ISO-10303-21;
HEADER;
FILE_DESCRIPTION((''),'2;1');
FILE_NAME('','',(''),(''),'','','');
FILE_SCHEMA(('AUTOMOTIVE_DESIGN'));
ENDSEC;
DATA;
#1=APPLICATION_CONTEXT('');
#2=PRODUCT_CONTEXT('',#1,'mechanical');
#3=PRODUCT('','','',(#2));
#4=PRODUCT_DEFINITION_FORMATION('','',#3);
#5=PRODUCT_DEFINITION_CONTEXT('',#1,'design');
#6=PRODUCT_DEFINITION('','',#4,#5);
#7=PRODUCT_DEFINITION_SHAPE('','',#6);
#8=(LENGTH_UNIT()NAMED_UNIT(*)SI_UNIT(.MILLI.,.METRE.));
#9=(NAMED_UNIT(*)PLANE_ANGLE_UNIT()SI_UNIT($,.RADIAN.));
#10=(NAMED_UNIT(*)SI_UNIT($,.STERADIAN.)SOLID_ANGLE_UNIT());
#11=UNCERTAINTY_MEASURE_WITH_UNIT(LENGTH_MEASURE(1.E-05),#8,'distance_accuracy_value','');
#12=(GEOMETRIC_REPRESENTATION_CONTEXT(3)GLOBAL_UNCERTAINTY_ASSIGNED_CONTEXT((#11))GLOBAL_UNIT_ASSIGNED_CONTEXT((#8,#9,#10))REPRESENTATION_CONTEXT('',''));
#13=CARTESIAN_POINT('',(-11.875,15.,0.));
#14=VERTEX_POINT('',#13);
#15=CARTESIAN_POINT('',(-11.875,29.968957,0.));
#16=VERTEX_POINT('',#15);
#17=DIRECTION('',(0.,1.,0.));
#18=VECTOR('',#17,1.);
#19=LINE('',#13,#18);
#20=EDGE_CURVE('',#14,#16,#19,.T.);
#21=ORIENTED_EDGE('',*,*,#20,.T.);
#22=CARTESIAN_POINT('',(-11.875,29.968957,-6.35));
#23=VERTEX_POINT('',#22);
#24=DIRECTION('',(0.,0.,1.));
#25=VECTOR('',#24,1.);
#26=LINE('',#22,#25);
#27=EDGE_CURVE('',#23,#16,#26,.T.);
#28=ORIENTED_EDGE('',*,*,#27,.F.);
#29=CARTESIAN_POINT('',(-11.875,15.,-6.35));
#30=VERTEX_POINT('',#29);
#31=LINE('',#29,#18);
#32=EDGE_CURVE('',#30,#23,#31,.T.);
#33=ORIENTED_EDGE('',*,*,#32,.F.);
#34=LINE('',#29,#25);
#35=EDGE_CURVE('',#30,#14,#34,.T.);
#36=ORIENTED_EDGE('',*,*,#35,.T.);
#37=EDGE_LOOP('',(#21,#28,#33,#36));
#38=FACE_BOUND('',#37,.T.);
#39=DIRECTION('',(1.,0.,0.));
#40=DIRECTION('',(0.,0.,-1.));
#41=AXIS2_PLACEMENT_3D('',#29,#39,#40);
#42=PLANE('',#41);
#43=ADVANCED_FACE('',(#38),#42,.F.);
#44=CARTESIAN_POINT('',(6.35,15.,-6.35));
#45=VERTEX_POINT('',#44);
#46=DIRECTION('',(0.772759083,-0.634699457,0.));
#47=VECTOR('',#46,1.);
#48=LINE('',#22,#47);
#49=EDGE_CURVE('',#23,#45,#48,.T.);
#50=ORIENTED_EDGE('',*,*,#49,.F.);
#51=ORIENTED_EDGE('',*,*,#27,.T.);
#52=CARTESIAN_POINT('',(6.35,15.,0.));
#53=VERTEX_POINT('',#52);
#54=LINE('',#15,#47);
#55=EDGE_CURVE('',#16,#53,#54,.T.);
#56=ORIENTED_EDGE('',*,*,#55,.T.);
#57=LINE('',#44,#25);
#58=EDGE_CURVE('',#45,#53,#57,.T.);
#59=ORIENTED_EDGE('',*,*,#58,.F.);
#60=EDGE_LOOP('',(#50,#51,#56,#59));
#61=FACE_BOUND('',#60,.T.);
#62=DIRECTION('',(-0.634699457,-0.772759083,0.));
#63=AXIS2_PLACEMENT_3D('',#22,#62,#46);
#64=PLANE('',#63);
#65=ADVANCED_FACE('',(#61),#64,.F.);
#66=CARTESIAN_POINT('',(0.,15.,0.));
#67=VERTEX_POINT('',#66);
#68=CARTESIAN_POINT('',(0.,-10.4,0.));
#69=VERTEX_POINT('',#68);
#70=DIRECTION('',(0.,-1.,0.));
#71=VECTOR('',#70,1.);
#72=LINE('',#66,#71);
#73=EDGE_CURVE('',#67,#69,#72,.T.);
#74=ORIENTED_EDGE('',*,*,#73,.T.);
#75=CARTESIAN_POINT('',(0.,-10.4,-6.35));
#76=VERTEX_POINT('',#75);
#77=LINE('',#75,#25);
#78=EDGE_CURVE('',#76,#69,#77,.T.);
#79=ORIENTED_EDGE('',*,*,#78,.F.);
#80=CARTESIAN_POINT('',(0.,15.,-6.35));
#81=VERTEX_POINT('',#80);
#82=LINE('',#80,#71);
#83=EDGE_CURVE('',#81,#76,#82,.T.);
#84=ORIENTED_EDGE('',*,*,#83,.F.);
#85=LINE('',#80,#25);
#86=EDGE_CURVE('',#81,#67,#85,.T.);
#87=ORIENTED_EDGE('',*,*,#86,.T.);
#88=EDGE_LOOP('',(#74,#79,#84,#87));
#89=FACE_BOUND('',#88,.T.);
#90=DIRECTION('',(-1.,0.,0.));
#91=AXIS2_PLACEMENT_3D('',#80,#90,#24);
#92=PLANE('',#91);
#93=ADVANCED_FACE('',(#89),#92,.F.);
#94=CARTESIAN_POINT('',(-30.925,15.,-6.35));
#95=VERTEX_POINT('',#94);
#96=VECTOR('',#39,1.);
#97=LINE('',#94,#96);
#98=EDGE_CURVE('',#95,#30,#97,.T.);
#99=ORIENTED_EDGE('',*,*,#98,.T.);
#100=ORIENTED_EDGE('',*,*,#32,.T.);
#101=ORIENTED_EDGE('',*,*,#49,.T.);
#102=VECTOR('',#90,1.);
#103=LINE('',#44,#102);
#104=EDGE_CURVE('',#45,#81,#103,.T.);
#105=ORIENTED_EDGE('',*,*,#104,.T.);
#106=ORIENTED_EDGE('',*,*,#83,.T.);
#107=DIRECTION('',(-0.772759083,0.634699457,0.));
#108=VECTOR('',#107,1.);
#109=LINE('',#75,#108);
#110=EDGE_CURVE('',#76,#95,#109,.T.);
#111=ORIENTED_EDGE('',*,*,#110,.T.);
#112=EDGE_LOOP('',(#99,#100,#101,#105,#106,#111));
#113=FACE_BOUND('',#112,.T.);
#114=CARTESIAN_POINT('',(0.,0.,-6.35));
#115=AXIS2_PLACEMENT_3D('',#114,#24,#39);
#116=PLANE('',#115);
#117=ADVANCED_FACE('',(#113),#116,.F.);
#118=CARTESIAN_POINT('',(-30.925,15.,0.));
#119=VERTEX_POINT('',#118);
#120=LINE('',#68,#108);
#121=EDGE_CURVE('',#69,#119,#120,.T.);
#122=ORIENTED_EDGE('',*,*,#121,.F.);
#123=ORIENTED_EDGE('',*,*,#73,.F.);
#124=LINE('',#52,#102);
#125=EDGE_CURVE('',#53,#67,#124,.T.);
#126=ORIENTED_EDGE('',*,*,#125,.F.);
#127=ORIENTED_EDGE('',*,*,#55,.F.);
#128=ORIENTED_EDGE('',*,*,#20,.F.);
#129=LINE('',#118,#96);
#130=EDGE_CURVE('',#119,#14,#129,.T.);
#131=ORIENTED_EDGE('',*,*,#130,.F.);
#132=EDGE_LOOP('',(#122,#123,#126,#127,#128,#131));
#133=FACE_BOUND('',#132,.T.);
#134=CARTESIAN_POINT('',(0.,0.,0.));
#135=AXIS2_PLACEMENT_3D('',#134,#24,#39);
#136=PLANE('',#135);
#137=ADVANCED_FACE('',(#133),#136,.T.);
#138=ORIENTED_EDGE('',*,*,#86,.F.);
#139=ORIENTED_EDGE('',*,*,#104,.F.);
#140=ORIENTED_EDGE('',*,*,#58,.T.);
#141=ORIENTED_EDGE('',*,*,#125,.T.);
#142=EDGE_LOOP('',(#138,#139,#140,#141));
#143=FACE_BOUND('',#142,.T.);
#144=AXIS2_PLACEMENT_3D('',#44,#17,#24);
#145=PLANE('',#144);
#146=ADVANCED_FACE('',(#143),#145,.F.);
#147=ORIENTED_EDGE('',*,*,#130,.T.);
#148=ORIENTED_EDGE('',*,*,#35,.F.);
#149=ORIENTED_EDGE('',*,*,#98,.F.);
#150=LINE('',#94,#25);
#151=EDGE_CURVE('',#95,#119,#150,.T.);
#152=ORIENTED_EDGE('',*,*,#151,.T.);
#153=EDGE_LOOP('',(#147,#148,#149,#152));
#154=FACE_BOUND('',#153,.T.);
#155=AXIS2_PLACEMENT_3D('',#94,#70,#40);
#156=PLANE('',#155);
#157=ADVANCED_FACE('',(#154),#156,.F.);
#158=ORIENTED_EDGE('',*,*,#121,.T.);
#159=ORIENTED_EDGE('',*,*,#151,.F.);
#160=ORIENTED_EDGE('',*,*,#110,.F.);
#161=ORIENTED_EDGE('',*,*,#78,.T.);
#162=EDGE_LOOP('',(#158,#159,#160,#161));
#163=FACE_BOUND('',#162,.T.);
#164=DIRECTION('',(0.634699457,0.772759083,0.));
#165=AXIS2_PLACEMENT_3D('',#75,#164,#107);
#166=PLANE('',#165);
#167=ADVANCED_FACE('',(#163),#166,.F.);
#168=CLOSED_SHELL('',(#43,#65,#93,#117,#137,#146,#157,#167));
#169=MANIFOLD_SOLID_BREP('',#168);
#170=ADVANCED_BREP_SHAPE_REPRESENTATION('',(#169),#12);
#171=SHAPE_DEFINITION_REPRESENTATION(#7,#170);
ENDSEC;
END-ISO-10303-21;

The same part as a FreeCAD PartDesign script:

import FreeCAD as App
import Part
import Sketcher
Q = App.Units.Quantity


def add_polygon(sketch, points):
    """Adds a closed chain of lines whose ends are joined by coincident constraints."""
    first, n = sketch.GeometryCount, len(points)
    for a, b in zip(points, points[1:] + points[:1]):
        sketch.addGeometry(Part.LineSegment(App.Vector(*a, 0), App.Vector(*b, 0)), False)
    for i in range(n):
        sketch.addConstraint(Sketcher.Constraint("Coincident", first + i, 2, first + (i + 1) % n, 1))

doc = App.newDocument("Part")
body = doc.addObject("PartDesign::Body", "Body")

sketch1 = doc.addObject("Sketcher::SketchObject", "Sketch")
body.addObject(sketch1)
sketch1.AttachmentSupport = (doc.XY_Plane, [""])
sketch1.MapMode = "FlatFace"
add_polygon(sketch1, [(-31, 15), (0, -10), (0, 15), (6, 15), (-12, 30), (-12, 15)])
sketch1.addConstraint(Sketcher.Constraint("Vertical", 1))
sketch1.addConstraint(Sketcher.Constraint("Horizontal", 2))
sketch1.addConstraint(Sketcher.Constraint("Vertical", 4))
sketch1.addConstraint(Sketcher.Constraint("Horizontal", 5))
sketch1.addConstraint(Sketcher.Constraint("PointOnObject", 0, 2, -2))
sketch1.addConstraint(Sketcher.Constraint("Parallel", 0, 3))
sketch1.addConstraint(Sketcher.Constraint("Horizontal", 2, 2, 4, 2))
sketch1.addConstraint(Sketcher.Constraint("DistanceY", 1, 1, 1, 2, Q("1 in")))
sketch1.addConstraint(Sketcher.Constraint("DistanceX", 2, 1, 2, 2, Q("0.25 in")))
sketch1.addConstraint(Sketcher.Constraint("DistanceX", 5, 2, 5, 1, Q("0.75 in")))
sketch1.addConstraint(Sketcher.Constraint("DistanceY", 0, 2, -1, 1, 10.4))
sketch1.addConstraint(Sketcher.Constraint("DistanceX", 3, 2, -1, 1, 11.875))
pad1 = doc.addObject("PartDesign::Pad", "Pad")
body.addObject(pad1)
pad1.Profile = sketch1
pad1.Length = Q("0.25 in")
pad1.Reversed = True

doc.recompute()
